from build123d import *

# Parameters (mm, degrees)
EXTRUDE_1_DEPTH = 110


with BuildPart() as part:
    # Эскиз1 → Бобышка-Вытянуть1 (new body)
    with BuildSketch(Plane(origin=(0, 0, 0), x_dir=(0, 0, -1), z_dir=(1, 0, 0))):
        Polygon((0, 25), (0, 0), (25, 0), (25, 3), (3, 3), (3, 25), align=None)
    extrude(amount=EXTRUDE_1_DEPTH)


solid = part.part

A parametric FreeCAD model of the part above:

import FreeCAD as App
import Part
import Sketcher

V = App.Vector
Q = App.Units.Quantity


def add_polygon(sketch, points):
    """Adds a closed chain of lines whose ends are joined by coincident constraints."""
    first, n = sketch.GeometryCount, len(points)
    for a, b in zip(points, points[1:] + points[:1]):
        sketch.addGeometry(Part.LineSegment(App.Vector(*a, 0), App.Vector(*b, 0)), False)
    for i in range(n):
        sketch.addConstraint(Sketcher.Constraint("Coincident", first + i, 2, first + (i + 1) % n, 1))

doc = App.newDocument("Part")
body = doc.addObject("PartDesign::Body", "Body")

# Sketch on YZ plane
sketch1 = doc.addObject("Sketcher::SketchObject", "Sketch")
body.addObject(sketch1)
sketch1.AttachmentSupport = (doc.YZ_Plane, [""])
sketch1.MapMode = "FlatFace"
add_polygon(sketch1, [(25, 0), (0, 0), (0, -25), (3, -25), (3, -3), (25, -3)])  # lines 0-5
sketch1.addConstraint([
    Sketcher.Constraint("Horizontal", 0),
    Sketcher.Constraint("Vertical", 1),
    Sketcher.Constraint("Horizontal", 2),
    Sketcher.Constraint("Vertical", 3),
    Sketcher.Constraint("Horizontal", 4),
    Sketcher.Constraint("Vertical", 5),
    Sketcher.Constraint("Coincident", 0, 2, -1, 1),
    Sketcher.Constraint("Equal", 0, 1),
    Sketcher.Constraint("Equal", 4, 3),
    Sketcher.Constraint("DistanceX", 0, 2, 0, 1, Q("25 mm")),
    Sketcher.Constraint("DistanceX", 2, 1, 2, 2, Q("3 mm")),
])
pad1 = doc.addObject("PartDesign::Pad", "Pad")
body.addObject(pad1)
pad1.Profile = sketch1
pad1.Length = 110

doc.recompute()
